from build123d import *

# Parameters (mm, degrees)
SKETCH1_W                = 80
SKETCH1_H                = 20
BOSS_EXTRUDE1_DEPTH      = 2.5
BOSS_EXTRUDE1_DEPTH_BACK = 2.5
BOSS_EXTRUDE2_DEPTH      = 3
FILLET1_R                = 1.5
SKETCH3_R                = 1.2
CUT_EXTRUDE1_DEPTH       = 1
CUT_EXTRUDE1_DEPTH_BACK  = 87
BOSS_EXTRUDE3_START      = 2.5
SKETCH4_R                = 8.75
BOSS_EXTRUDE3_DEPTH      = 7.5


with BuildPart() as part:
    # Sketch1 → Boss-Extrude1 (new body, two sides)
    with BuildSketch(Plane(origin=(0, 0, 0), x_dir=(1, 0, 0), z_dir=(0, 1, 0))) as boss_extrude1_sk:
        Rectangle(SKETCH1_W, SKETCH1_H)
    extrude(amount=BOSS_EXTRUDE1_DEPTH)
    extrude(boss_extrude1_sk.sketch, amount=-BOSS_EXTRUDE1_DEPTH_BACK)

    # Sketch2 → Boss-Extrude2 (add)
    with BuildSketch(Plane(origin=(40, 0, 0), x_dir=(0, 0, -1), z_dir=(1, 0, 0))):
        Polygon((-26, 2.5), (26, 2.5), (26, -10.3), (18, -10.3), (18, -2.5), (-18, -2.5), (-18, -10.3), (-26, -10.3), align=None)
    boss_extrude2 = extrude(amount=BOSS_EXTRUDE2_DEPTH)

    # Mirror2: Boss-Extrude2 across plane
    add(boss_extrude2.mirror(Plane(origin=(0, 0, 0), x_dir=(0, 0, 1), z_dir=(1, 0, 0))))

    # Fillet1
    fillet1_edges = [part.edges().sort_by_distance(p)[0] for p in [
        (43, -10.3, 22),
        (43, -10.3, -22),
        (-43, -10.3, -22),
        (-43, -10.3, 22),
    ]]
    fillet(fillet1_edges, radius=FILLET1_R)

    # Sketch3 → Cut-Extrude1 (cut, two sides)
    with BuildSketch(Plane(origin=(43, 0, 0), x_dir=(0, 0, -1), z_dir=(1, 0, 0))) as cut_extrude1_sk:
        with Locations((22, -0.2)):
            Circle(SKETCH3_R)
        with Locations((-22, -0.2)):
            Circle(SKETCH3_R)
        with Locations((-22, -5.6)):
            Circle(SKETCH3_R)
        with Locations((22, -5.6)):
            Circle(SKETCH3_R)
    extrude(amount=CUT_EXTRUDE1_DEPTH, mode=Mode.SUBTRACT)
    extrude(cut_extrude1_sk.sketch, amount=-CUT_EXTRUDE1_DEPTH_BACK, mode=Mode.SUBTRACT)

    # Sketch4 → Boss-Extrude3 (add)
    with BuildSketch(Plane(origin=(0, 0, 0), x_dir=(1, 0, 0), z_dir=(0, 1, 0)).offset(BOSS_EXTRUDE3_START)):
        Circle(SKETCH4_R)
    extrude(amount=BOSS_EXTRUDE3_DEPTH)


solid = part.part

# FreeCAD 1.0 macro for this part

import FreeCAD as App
import Part
import Sketcher
from FreeCAD import Vector


def edges_at(feature, points):
    """Names of the edges that pass closest to the given points."""
    edges = feature.Shape.Edges
    near = lambda p: min(range(len(edges)), key=lambda i: edges[i].distToShape(Part.Vertex(*p))[0])
    return sorted({f"Edge{near(p) + 1}" for p in points})

doc = App.newDocument("Part")
body = doc.addObject("PartDesign::Body", "Body")

# Sketch on XZ plane
sketch1 = body.newObject("Sketcher::SketchObject", "Sketch")
sketch1.AttachmentSupport = (doc.getObject("XZ_Plane"), [""])
sketch1.MapMode = "FlatFace"
sketch1.addGeometry([
    Part.LineSegment(Vector(-40, -10, 0), Vector(-40, 10, 0)),
    Part.LineSegment(Vector(-40, 10, 0), Vector(40, 10, 0)),
    Part.LineSegment(Vector(40, 10, 0), Vector(40, -10, 0)),
    Part.LineSegment(Vector(40, -10, 0), Vector(-40, -10, 0)),
], False)
sketch1.addConstraint([
    Sketcher.Constraint("Coincident", 0, 2, 1, 1),
    Sketcher.Constraint("Coincident", 1, 2, 2, 1),
    Sketcher.Constraint("Coincident", 2, 2, 3, 1),
    Sketcher.Constraint("Coincident", 3, 2, 0, 1),
    Sketcher.Constraint("Vertical", 0),
    Sketcher.Constraint("Horizontal", 1),
    Sketcher.Constraint("Vertical", 2),
    Sketcher.Constraint("Horizontal", 3),
    Sketcher.Constraint("Symmetric", 0, 2, 2, 2, -1, 1),
    Sketcher.Constraint("DistanceX", 1, 1, 1, 2, 80.0),
    Sketcher.Constraint("DistanceY", 0, 1, 0, 2, 20.0),
])
pad1 = body.newObject("PartDesign::Pad", "Pad")
pad1.Profile = sketch1
pad1.Type = "TwoLengths"
pad1.Length = 2.5
pad1.Length2 = 2.5
pad1.Reversed = True

# Sketch on YZ plane
sketch2 = body.newObject("Sketcher::SketchObject", "Sketch001")
sketch2.AttachmentSupport = (doc.getObject("YZ_Plane"), [""])
sketch2.MapMode = "FlatFace"
sketch2.AttachmentOffset = App.Placement(Vector(0, 0, 40), App.Rotation())
sketch2.addGeometry([
    Part.LineSegment(Vector(2.5, -26, 0), Vector(2.5, 26, 0)),  # 0
    Part.LineSegment(Vector(2.5, 26, 0), Vector(-10.3, 26, 0)),  # 1
    Part.LineSegment(Vector(-10.3, 26, 0), Vector(-10.3, 18, 0)),  # 2
    Part.LineSegment(Vector(-10.3, 18, 0), Vector(-2.5, 18, 0)),  # 3
    Part.LineSegment(Vector(-2.5, 18, 0), Vector(-2.5, -18, 0)),  # 4
    Part.LineSegment(Vector(-2.5, -18, 0), Vector(-10.3, -18, 0)),  # 5
    Part.LineSegment(Vector(-10.3, -18, 0), Vector(-10.3, -26, 0)),  # 6
    Part.LineSegment(Vector(-10.3, -26, 0), Vector(2.5, -26, 0)),  # 7
], False)
sketch2.addConstraint([
    Sketcher.Constraint("Coincident", 0, 2, 1, 1),
    Sketcher.Constraint("Coincident", 1, 2, 2, 1),
    Sketcher.Constraint("Coincident", 2, 2, 3, 1),
    Sketcher.Constraint("Coincident", 3, 2, 4, 1),
    Sketcher.Constraint("Coincident", 4, 2, 5, 1),
    Sketcher.Constraint("Coincident", 5, 2, 6, 1),
    Sketcher.Constraint("Coincident", 6, 2, 7, 1),
    Sketcher.Constraint("Coincident", 7, 2, 0, 1),
    Sketcher.Constraint("Vertical", 0),
    Sketcher.Constraint("Horizontal", 1),
    Sketcher.Constraint("Vertical", 2),
    Sketcher.Constraint("Horizontal", 3),
    Sketcher.Constraint("Vertical", 4),
    Sketcher.Constraint("Horizontal", 5),
    Sketcher.Constraint("Vertical", 6),
    Sketcher.Constraint("Horizontal", 7),
    Sketcher.Constraint("Symmetric", 2, 2, 5, 2, -1),
    Sketcher.Constraint("Equal", 2, 6),
    Sketcher.Constraint("DistanceY", 0, 1, 0, 2, 52.0),
    Sketcher.Constraint("DistanceY", 2, 2, 2, 1, 8.0),
    Sketcher.Constraint("DistanceX", 1, 2, 1, 1, 12.8),
    Sketcher.Constraint("DistanceX", 3, 1, 3, 2, 7.8),
    Sketcher.Constraint("DistanceX", -1, 1, 0, 2, 2.5),
])
pad2 = body.newObject("PartDesign::Pad", "Pad001")
pad2.Profile = sketch2
pad2.Length = 3
doc.recompute()

mirrored = body.newObject("PartDesign::Mirrored", "Mirrored")
mirrored.Originals = [pad2]
mirrored.MirrorPlane = (doc.getObject("YZ_Plane"), [""])
body.Tip = mirrored
doc.recompute()

fillet = body.newObject("PartDesign::Fillet", "Fillet")
fillet.Base = (mirrored, edges_at(mirrored, [
    (43, -10.3, 22),
    (43, -10.3, -22),
    (-43, -10.3, -22),
    (-43, -10.3, 22),
]))
fillet.Radius = 1.5

# Sketch on YZ plane
sketch3 = body.newObject("Sketcher::SketchObject", "Sketch002")
sketch3.AttachmentSupport = (doc.getObject("YZ_Plane"), [""])
sketch3.MapMode = "FlatFace"
sketch3.AttachmentOffset = App.Placement(Vector(0, 0, 43), App.Rotation())
sketch3.addGeometry([
    Part.Circle(Vector(-0.2, -22, 0), Vector(0, 0, 1), 1.2),
    Part.Circle(Vector(-0.2, 22, 0), Vector(0, 0, 1), 1.2),
    Part.Circle(Vector(-5.6, 22, 0), Vector(0, 0, 1), 1.2),
    Part.Circle(Vector(-5.6, -22, 0), Vector(0, 0, 1), 1.2),
], False)
sketch3.addConstraint([
    Sketcher.Constraint("Equal", 0, 1),
    Sketcher.Constraint("Equal", 1, 2),
    Sketcher.Constraint("Equal", 2, 3),
    Sketcher.Constraint("Symmetric", 0, 3, 1, 3, -1),
    Sketcher.Constraint("Symmetric", 2, 3, 3, 3, -1),
    Sketcher.Constraint("Horizontal", 1, 3, 2, 3),
    Sketcher.Constraint("Diameter", 0, 2.4),
    Sketcher.Constraint("DistanceY", 0, 3, -1, 1, 22.0),
    Sketcher.Constraint("DistanceX", 0, 3, -1, 1, 0.2),
    Sketcher.Constraint("DistanceX", 2, 3, -1, 1, 5.6),
])
pocket1 = body.newObject("PartDesign::Pocket", "Pocket")
pocket1.Profile = sketch3
pocket1.Type = "ThroughAll"
pocket1.Midplane = True

# Sketch on XZ plane
sketch4 = body.newObject("Sketcher::SketchObject", "Sketch003")
sketch4.AttachmentSupport = (doc.getObject("XZ_Plane"), [""])
sketch4.MapMode = "FlatFace"
sketch4.AttachmentOffset = App.Placement(Vector(0, 0, -2.5), App.Rotation())
sketch4.addGeometry(Part.Circle(Vector(0, 0, 0), Vector(0, 0, 1), 8.75), False)
sketch4.addConstraint([
    Sketcher.Constraint("Coincident", 0, 3, -1, 1),
    Sketcher.Constraint("Diameter", 0, 17.5),
])
pad3 = body.newObject("PartDesign::Pad", "Pad002")
pad3.Profile = sketch4
pad3.Length = 7.5
pad3.Reversed = True

doc.recompute()
